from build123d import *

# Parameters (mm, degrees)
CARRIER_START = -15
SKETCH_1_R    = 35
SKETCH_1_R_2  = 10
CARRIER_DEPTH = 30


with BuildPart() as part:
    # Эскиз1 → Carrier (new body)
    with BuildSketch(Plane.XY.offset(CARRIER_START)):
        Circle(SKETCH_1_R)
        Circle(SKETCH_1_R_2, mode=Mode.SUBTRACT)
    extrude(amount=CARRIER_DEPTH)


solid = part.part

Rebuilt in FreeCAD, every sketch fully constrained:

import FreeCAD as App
import Part
import Sketcher
from FreeCAD import Vector
Q = App.Units.Quantity

doc = App.newDocument("Part")
params = doc.addObject("Spreadsheet::Sheet", "Params")
for row, (alias, value) in enumerate([
    ("sketch1_diameter", "70 mm"),
    ("sketch1_diameter2", "20 mm"),
    ("pad1_length", "30 mm"),
], start=1):
    params.set(f"A{row}", alias)
    params.set(f"B{row}", "=" + value)
    params.setAlias(f"B{row}", alias)

body = doc.addObject("PartDesign::Body", "Body")

sketch1 = body.newObject("Sketcher::SketchObject", "Sketch")
sketch1.AttachmentSupport = (doc.getObject("XY_Plane"), [""])
sketch1.MapMode = "FlatFace"
sketch1.AttachmentOffset = App.Placement(Vector(0, 0, -15), App.Rotation())
sketch1.addGeometry(Part.Circle(Vector(0, 0, 0), Vector(0, 0, 1), 35), False)
sketch1.addGeometry(Part.Circle(Vector(0, 0, 0), Vector(0, 0, 1), 10), False)
sketch1.addConstraint(Sketcher.Constraint("Coincident", 0, 3, -1, 1))
sketch1.addConstraint(Sketcher.Constraint("Coincident", 1, 3, -1, 1))
sketch1.addConstraint(Sketcher.Constraint("Diameter", 0, Q("70 mm")))
sketch1.addConstraint(Sketcher.Constraint("Diameter", 1, Q("20 mm")))
sketch1.setExpression("Constraints[2]", "Params.sketch1_diameter")
sketch1.setExpression("Constraints[3]", "Params.sketch1_diameter2")
pad1 = body.newObject("PartDesign::Pad", "Pad")
pad1.Profile = sketch1
pad1.setExpression("Length", "Params.pad1_length")

doc.recompute()
